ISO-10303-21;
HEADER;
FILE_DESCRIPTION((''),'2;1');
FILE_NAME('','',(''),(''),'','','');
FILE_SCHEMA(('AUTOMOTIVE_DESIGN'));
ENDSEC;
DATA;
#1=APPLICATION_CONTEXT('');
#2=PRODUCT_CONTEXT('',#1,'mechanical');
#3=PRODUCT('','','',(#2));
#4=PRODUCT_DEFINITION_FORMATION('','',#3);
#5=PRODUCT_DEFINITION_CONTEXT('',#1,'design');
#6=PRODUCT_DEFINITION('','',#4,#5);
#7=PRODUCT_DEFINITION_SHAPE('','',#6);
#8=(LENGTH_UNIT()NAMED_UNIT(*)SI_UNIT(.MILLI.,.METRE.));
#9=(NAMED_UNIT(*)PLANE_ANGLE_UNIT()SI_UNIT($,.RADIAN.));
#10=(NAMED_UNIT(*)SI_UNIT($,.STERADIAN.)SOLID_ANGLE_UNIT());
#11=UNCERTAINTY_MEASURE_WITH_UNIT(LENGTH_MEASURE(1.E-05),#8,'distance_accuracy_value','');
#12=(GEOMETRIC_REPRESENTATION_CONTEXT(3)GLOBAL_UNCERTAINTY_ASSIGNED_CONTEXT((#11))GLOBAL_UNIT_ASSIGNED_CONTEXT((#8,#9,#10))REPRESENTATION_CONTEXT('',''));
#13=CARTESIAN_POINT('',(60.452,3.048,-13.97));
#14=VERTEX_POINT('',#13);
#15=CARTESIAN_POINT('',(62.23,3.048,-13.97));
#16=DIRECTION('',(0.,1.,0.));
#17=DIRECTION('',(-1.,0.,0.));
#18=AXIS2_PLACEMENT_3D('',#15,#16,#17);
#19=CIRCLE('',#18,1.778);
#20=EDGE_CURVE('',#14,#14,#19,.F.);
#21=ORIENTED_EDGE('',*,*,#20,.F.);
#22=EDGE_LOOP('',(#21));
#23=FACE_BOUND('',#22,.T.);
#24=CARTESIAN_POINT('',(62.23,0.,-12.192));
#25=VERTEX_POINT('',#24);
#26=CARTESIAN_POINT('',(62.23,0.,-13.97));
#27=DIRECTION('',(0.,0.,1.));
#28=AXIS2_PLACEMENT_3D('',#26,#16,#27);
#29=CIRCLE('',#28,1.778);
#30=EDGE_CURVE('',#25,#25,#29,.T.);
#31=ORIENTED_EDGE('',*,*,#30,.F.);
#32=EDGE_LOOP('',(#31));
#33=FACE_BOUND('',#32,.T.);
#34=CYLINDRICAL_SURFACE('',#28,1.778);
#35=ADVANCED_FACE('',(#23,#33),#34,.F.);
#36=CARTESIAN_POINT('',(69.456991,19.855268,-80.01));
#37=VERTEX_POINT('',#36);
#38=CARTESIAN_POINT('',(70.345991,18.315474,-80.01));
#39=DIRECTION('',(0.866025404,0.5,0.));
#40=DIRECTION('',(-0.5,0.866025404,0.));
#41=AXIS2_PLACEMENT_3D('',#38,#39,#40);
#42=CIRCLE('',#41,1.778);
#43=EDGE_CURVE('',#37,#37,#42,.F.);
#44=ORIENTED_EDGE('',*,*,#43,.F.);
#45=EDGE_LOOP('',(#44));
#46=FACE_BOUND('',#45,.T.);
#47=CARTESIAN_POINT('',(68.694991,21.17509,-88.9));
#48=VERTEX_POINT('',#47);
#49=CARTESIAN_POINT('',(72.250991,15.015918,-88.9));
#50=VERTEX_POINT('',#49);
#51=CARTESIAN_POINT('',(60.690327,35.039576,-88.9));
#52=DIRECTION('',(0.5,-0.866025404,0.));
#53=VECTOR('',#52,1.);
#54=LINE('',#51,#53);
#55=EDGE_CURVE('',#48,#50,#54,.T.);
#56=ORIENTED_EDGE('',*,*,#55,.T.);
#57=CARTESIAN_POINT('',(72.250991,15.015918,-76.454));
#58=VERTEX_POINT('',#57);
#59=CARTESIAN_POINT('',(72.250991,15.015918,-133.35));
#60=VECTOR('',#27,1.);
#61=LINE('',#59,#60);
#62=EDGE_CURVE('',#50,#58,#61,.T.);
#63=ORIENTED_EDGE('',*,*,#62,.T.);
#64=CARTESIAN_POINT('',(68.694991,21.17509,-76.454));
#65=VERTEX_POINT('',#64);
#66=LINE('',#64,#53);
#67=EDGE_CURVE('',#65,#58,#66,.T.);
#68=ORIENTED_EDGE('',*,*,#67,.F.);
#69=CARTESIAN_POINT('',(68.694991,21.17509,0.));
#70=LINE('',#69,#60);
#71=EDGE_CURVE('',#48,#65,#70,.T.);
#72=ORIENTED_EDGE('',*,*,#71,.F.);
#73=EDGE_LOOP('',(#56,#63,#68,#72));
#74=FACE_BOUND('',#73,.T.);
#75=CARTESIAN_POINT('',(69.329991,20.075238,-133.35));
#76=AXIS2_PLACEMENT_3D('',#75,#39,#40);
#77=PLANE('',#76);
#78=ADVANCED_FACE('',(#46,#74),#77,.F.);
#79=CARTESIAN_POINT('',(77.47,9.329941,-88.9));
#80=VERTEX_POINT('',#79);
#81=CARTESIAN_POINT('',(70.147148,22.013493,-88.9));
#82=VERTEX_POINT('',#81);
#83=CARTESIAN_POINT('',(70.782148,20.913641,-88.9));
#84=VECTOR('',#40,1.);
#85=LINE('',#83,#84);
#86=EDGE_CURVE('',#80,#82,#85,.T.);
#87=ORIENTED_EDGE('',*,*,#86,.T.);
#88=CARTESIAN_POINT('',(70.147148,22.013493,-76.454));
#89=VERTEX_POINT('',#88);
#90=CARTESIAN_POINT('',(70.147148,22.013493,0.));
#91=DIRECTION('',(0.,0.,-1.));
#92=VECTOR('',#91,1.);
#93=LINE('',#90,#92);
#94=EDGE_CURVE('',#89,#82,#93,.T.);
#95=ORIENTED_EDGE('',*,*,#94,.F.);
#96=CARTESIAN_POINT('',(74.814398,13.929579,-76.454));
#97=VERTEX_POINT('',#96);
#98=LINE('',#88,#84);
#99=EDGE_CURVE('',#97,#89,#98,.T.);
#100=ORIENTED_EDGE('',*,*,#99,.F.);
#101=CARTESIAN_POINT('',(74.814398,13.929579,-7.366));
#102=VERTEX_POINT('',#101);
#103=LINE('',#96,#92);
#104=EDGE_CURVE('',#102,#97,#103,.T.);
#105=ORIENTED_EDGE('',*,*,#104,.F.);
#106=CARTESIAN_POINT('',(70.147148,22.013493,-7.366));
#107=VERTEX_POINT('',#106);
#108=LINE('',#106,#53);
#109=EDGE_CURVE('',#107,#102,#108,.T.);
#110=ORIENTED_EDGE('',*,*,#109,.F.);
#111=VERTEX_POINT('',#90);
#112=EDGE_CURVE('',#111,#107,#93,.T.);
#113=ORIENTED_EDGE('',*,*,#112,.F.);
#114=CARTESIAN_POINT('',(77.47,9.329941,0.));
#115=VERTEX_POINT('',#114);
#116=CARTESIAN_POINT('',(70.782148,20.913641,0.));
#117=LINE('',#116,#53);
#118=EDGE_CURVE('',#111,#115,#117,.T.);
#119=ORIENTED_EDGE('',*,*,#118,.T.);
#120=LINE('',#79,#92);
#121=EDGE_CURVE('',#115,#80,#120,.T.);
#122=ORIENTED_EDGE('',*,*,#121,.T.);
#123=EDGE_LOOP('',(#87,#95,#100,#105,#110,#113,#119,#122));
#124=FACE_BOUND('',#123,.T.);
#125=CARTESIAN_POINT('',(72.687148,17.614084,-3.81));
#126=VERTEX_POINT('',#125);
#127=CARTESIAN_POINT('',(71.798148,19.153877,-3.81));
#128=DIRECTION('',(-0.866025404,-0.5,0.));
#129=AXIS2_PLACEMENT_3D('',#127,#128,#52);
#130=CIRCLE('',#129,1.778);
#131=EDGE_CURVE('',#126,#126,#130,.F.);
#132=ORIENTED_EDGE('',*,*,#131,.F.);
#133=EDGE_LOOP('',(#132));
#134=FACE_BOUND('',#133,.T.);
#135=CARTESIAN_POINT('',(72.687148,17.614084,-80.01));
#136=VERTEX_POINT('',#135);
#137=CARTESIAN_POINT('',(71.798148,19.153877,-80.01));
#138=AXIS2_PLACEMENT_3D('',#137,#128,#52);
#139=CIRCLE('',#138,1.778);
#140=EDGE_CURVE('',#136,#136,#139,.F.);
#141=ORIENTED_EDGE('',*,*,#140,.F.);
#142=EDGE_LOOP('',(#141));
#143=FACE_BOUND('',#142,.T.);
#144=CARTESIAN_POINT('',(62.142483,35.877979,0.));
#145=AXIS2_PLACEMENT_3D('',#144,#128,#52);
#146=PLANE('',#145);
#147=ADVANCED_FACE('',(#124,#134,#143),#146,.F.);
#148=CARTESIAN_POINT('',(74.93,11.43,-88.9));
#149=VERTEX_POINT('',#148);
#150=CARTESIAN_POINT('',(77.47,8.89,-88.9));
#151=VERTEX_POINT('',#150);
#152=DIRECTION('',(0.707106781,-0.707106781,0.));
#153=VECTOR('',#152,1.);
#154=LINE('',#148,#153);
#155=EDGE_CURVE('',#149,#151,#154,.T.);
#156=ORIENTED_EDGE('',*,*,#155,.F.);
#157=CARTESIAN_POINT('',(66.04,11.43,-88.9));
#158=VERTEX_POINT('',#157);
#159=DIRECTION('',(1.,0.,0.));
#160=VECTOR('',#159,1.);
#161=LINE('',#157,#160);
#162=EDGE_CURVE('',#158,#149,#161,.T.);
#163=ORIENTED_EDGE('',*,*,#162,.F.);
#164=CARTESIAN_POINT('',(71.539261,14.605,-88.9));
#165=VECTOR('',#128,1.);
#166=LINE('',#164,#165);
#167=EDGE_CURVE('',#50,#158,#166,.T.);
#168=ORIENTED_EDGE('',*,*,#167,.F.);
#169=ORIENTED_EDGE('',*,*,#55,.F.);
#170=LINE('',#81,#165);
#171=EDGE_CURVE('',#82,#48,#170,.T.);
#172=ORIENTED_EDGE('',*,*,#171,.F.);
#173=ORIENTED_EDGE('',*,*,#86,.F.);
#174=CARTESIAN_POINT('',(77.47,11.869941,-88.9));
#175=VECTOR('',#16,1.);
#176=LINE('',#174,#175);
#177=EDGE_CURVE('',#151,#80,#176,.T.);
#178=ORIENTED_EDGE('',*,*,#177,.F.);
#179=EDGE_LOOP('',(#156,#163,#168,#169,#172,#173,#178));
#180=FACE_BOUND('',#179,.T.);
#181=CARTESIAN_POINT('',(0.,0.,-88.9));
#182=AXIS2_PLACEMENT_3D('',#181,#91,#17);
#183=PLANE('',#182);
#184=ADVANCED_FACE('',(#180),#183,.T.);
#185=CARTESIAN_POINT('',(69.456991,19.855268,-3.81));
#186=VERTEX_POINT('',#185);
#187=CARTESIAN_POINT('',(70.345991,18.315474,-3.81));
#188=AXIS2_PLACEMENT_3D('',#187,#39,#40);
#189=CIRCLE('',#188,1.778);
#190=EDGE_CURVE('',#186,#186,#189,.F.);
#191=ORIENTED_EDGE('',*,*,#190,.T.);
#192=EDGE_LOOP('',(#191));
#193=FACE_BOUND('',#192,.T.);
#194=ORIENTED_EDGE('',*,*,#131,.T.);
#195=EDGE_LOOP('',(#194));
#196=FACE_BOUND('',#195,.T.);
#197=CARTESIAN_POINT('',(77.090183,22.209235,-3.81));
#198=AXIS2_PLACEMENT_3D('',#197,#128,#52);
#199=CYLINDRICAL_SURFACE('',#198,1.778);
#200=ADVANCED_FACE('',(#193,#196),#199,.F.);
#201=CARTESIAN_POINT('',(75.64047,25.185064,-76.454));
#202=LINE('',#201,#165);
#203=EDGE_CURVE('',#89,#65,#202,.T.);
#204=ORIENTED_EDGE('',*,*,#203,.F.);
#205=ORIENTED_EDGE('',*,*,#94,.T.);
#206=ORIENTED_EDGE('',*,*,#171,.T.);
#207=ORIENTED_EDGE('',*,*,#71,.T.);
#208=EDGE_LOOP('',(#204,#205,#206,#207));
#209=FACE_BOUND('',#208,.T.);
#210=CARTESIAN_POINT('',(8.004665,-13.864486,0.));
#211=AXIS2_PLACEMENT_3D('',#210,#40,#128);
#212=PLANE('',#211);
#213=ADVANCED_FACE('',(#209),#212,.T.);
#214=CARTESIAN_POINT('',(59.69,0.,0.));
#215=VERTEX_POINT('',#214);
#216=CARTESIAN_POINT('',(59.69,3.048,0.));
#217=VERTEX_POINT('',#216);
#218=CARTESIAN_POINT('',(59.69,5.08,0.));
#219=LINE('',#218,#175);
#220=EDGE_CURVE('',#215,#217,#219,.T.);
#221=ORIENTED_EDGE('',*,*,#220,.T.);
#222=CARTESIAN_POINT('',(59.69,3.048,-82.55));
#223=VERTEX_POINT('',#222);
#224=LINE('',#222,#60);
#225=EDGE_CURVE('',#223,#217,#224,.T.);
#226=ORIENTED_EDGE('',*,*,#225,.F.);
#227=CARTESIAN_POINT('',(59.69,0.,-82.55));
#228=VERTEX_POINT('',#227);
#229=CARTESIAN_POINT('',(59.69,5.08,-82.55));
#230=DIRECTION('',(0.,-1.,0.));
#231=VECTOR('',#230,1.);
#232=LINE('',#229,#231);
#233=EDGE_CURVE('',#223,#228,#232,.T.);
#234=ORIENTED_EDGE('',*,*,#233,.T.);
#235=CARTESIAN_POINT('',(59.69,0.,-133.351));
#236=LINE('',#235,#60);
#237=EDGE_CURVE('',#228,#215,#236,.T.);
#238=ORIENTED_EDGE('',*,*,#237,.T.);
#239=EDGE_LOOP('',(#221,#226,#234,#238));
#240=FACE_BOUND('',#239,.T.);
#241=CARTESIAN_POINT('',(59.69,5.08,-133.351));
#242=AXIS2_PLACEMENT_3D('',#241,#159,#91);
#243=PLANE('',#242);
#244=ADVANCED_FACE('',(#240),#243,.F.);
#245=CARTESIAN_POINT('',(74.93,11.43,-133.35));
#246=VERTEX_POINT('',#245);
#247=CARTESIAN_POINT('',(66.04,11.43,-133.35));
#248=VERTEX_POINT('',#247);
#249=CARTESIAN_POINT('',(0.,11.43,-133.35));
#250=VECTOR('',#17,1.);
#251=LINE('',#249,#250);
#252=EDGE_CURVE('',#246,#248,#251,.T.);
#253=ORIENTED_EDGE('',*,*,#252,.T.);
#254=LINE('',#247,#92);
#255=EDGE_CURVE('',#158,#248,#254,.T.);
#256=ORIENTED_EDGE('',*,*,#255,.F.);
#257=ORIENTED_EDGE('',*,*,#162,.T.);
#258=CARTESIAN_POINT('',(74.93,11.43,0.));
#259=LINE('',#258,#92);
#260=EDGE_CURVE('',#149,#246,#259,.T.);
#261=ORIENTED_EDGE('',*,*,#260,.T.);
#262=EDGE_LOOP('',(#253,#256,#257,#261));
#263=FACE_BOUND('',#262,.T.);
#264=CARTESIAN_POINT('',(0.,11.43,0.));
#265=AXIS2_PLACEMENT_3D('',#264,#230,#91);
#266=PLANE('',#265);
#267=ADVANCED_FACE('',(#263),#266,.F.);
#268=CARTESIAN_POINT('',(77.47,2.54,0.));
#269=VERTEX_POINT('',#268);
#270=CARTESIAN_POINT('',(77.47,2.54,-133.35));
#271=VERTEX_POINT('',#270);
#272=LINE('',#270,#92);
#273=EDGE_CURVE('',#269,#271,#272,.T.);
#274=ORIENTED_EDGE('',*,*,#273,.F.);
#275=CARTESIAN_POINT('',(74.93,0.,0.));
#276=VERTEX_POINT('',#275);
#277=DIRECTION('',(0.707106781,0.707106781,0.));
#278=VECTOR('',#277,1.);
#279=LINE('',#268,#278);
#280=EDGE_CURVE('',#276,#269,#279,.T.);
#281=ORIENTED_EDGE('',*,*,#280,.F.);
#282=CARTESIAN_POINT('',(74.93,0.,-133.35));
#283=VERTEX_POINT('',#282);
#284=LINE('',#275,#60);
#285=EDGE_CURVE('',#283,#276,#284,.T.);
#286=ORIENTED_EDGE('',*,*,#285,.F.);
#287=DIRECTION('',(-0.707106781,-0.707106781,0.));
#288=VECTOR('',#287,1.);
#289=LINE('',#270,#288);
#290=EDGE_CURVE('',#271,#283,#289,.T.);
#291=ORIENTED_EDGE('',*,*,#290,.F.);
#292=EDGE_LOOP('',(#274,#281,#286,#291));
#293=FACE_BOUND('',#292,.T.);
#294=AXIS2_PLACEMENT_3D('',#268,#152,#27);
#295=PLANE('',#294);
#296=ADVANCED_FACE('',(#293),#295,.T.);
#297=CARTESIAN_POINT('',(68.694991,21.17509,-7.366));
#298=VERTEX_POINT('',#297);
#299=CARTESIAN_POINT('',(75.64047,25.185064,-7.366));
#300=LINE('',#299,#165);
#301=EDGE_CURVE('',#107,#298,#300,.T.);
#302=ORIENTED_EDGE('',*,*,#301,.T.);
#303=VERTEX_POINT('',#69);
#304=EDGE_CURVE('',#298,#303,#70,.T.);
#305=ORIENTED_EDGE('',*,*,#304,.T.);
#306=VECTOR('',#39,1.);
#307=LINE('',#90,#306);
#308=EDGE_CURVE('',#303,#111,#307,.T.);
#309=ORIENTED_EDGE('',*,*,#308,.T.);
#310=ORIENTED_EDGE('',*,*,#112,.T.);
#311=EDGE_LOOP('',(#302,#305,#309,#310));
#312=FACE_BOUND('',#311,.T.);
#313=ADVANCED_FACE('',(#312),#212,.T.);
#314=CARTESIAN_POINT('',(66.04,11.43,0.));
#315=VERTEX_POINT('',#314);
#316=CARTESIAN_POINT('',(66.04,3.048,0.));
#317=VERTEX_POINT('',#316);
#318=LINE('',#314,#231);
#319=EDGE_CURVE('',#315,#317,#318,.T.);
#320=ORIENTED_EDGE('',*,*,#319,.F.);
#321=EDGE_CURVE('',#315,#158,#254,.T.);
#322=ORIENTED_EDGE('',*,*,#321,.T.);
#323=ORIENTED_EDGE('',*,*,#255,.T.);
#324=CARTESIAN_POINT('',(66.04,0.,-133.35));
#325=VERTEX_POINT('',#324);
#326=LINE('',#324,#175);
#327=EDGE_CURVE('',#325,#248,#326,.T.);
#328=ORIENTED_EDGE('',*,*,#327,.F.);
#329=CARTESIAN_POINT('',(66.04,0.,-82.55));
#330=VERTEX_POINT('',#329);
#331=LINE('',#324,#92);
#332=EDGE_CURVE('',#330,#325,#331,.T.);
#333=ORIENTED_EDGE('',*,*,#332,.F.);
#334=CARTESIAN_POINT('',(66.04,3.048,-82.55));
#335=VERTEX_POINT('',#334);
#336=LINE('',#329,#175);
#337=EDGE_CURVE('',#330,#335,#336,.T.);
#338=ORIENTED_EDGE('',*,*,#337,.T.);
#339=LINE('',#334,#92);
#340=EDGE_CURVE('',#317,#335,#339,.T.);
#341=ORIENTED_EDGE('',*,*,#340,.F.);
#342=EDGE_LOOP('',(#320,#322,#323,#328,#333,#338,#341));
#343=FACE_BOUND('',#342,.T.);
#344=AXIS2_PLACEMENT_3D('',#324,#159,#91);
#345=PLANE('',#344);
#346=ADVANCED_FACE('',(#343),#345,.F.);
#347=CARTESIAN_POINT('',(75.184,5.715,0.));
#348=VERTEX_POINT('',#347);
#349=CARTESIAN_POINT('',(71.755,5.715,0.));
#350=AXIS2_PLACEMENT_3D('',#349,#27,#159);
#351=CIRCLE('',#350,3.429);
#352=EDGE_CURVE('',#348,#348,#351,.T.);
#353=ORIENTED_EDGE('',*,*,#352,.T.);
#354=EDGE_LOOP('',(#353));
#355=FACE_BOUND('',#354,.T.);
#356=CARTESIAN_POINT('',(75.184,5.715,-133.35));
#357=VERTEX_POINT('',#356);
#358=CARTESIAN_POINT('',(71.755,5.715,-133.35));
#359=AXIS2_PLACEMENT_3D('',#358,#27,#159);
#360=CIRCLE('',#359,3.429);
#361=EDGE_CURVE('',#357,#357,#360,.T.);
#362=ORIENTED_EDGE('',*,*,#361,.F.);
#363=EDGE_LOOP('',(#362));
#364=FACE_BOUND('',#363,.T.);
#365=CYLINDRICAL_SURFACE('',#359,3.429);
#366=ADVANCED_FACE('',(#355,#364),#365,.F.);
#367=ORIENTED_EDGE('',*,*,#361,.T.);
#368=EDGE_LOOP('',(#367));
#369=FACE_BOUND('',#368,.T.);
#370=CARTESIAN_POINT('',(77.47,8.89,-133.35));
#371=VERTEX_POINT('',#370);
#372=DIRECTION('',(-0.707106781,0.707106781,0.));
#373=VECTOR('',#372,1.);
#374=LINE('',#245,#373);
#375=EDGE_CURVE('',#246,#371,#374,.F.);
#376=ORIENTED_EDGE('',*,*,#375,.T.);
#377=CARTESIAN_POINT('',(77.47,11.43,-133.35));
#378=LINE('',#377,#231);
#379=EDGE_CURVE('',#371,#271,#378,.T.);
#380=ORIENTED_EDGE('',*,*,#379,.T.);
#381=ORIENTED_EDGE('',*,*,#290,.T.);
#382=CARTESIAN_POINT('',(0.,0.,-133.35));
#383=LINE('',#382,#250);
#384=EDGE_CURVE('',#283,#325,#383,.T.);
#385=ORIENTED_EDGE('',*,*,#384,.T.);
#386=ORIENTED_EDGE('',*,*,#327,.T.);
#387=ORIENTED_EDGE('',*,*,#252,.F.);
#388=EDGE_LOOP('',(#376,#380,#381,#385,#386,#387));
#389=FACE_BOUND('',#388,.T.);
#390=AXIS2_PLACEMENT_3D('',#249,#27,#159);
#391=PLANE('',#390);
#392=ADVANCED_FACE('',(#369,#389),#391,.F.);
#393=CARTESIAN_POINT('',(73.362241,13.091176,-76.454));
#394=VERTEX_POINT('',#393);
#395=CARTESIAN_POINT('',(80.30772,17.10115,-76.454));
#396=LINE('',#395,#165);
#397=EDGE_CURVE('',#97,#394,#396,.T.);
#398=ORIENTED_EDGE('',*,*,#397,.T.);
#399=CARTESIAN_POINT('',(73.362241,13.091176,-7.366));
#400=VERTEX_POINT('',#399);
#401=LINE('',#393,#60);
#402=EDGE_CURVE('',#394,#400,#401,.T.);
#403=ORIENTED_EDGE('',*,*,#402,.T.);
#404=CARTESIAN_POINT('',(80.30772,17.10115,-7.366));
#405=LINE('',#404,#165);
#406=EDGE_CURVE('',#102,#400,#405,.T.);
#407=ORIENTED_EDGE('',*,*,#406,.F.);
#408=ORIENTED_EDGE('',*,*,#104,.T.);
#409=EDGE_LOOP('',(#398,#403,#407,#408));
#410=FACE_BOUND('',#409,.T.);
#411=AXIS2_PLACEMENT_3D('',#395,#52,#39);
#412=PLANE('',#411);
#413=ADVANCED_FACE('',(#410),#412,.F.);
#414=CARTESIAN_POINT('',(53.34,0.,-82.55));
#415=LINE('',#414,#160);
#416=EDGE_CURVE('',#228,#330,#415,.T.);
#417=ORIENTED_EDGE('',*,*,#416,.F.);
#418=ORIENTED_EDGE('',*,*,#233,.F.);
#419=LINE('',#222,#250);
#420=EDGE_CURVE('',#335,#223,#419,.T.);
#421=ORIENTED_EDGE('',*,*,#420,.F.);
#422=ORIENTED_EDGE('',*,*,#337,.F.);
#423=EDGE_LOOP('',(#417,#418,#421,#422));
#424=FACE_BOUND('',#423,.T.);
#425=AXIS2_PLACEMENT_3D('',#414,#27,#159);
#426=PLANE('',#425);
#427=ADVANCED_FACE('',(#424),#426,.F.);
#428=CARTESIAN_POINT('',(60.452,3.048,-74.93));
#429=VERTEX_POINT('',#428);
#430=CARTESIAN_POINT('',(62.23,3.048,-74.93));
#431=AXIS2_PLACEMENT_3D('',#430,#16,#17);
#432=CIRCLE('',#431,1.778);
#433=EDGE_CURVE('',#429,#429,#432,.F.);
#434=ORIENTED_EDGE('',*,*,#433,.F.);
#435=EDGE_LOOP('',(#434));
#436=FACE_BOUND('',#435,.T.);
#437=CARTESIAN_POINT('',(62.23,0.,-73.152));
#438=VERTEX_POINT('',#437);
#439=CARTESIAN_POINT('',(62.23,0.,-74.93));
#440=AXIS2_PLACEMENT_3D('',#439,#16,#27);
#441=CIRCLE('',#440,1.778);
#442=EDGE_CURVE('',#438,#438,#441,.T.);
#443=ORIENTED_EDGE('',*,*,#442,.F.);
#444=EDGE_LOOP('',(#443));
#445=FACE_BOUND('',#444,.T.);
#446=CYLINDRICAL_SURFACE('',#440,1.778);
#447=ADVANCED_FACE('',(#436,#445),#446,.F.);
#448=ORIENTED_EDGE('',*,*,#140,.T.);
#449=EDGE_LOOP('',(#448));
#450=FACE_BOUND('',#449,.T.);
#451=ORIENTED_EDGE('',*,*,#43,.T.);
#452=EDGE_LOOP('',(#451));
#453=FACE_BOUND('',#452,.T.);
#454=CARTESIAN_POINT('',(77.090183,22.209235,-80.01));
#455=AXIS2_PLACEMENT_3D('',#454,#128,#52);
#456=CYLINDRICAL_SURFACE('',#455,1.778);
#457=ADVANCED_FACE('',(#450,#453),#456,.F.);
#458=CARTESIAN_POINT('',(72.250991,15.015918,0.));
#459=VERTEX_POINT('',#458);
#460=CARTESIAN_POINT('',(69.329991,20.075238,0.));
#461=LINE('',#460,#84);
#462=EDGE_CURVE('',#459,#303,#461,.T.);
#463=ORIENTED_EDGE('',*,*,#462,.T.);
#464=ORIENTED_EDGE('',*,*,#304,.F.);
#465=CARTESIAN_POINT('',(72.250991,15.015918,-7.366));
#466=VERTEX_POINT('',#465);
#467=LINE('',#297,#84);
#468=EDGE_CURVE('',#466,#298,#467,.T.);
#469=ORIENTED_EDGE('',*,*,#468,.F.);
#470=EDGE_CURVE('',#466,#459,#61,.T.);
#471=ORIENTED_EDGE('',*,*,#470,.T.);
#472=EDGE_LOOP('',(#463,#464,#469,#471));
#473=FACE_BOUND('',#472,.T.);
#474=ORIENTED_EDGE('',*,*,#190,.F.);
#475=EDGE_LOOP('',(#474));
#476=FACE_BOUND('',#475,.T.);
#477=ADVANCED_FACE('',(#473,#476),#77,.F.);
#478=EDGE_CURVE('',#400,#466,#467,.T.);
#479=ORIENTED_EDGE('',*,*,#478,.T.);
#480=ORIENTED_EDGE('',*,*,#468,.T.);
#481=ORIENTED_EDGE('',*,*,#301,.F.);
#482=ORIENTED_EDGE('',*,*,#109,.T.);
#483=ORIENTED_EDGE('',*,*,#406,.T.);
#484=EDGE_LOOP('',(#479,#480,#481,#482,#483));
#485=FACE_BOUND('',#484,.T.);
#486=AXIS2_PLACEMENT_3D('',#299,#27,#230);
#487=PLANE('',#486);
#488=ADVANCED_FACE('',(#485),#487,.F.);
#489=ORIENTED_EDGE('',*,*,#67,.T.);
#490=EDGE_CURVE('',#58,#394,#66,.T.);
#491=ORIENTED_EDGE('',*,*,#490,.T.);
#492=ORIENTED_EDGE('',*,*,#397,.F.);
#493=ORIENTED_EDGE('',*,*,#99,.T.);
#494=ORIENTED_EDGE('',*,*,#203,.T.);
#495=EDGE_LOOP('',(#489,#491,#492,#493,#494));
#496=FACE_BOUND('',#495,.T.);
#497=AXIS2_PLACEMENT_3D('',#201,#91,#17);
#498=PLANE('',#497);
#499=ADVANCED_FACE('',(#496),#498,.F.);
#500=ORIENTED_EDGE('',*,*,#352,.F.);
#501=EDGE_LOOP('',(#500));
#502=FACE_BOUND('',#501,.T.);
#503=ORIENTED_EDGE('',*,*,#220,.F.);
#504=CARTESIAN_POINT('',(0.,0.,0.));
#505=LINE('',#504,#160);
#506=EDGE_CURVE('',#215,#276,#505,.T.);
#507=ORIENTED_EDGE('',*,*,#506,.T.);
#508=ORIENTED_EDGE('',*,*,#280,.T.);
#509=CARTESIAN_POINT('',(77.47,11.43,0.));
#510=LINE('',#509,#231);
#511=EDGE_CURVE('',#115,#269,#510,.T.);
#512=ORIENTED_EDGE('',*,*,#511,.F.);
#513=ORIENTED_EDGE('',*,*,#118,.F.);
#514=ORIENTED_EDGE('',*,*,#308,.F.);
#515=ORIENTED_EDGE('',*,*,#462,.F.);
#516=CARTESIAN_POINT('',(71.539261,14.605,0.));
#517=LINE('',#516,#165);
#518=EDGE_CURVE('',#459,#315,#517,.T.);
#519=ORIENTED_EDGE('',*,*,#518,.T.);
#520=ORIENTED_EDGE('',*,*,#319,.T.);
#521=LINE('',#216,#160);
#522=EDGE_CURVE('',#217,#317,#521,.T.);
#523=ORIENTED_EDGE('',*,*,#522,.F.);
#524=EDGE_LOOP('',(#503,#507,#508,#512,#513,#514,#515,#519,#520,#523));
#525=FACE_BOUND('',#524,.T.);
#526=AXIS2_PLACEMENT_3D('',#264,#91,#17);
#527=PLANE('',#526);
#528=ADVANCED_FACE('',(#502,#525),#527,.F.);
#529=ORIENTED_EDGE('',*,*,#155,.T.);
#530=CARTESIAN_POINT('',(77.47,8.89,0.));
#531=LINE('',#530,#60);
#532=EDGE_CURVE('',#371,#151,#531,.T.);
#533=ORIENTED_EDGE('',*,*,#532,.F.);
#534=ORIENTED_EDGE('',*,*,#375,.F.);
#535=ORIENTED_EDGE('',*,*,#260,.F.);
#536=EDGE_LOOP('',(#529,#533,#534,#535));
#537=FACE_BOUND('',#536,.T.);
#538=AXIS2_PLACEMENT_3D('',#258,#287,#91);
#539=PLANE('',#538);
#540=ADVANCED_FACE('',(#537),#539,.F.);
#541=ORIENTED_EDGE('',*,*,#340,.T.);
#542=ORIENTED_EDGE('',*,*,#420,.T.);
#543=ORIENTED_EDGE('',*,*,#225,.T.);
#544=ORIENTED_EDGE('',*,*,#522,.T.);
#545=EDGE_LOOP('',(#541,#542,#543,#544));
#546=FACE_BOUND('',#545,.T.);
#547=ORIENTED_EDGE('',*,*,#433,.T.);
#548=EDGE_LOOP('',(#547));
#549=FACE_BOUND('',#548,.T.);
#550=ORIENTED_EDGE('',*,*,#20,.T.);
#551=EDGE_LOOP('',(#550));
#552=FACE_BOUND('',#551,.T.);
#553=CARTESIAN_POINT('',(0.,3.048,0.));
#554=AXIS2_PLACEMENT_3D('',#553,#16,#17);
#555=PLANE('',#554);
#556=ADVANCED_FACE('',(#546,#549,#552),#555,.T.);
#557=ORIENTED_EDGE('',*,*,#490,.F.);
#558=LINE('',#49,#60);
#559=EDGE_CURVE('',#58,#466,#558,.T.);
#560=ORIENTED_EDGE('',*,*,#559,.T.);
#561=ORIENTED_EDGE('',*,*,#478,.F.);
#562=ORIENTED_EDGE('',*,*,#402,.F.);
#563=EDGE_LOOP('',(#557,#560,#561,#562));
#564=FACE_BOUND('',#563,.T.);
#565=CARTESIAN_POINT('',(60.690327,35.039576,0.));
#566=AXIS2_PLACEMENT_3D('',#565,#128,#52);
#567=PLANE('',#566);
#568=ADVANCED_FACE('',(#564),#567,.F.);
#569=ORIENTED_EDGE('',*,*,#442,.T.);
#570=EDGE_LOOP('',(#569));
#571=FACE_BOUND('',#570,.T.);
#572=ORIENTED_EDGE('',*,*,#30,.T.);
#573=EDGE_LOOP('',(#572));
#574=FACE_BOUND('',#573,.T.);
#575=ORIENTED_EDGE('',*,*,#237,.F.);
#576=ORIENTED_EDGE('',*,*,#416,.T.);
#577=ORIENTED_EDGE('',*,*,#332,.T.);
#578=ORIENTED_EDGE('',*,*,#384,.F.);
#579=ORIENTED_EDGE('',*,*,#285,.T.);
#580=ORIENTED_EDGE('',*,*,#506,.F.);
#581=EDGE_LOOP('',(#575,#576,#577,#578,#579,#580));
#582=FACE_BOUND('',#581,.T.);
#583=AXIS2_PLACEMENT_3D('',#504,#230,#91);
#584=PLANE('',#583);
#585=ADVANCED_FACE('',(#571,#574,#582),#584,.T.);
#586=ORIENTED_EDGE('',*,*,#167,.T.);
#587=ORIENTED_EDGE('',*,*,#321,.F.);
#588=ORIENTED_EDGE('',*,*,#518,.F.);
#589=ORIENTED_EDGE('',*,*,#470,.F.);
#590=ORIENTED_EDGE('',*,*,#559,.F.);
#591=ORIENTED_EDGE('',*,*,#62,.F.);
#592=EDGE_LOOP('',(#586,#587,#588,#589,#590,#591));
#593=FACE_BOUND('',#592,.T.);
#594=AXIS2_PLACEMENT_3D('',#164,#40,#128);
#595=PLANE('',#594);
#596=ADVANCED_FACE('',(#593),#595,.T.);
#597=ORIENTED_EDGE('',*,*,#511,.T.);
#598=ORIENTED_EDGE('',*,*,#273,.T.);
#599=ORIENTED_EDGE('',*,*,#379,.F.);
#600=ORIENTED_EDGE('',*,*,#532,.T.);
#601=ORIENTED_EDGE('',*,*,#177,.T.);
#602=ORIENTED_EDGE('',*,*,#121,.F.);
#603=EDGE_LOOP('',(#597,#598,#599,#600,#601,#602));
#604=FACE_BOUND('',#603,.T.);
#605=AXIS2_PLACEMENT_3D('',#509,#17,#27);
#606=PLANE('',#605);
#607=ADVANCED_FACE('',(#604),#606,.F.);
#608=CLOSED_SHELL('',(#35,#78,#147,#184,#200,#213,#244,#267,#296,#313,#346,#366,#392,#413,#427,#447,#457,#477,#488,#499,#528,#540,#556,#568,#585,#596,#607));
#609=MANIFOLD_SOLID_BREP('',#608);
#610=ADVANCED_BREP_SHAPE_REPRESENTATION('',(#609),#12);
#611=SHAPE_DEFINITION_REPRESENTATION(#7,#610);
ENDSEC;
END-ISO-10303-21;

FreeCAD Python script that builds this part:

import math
import FreeCAD as App
import Part
import Sketcher
from FreeCAD import Vector
Q = App.Units.Quantity


def edges_at(feature, points):
    """Names of the edges that pass closest to the given points."""
    edges = feature.Shape.Edges
    near = lambda p: min(range(len(edges)), key=lambda i: edges[i].distToShape(Part.Vertex(*p))[0])
    return sorted({f"Edge{near(p) + 1}" for p in points})


def add_polygon(sketch, points):
    """Adds a closed chain of lines whose ends are joined by coincident constraints."""
    first, n = sketch.GeometryCount, len(points)
    for a, b in zip(points, points[1:] + points[:1]):
        sketch.addGeometry(Part.LineSegment(App.Vector(*a, 0), App.Vector(*b, 0)), False)
    for i in range(n):
        sketch.addConstraint(Sketcher.Constraint("Coincident", first + i, 2, first + (i + 1) % n, 1))

doc = App.newDocument("Part")
params = doc.addObject("Spreadsheet::Sheet", "Params")
for row, (alias, value) in enumerate([
    ("sketch1_width", "3.05 in"),
    ("sketch1_height", "5.25 in"),
    ("pad1_length", "0.45 in"),
    ("sketch2_diameter", "0.27 in"),
    ("sketch3_radius", "0.5 in"),
    ("sketch3_height", "1.5 in"),
    ("sketch3_width", "1.15 in"),
    ("sketch4_width", "2.15 in"),
    ("sketch4_height", "0.25 in"),
    ("chamfer_size", "0.1 in"),
    ("sketch5_height", "2 in"),
    ("sketch5_width", "2.6 in"),
    ("sketch6_width", "2.1 in"),
    ("sketch6_height", "3.25 in"),
    ("sketch7_diameter", "0.14 in"),
    ("sketch8_width", "0.35 in"),
    ("sketch8_length", "0.44 in"),
    ("sketch8_length2", "0.23 in"),
    ("sketch8_length3", "0.25 in"),
    ("pad2_length", "3.5 in"),
    ("sketch9_height", "0.2 in"),
    ("sketch9_width", "0.25 in"),
    ("sketch10_width", "0.25 in"),
    ("sketch10_height", "0.05 in"),
    ("sketch11_diameter", "0.14 in"),
    ("sketch12_diameter", "0.14 in"),
    ("sketch13_width", "3.5 in"),
    ("sketch13_height", "0.44 in"),
    ("pocket11_length", "0.05 in"),
    ("sketch14_length", "0.2 in"),
    ("sketch14_length2", "0.23 in"),
    ("sketch15_width", "0.25 in"),
    ("sketch15_height", "3.25 in"),
    ("pocket13_length", "0.03 in"),
    ("sketch16_height", "3.5 in"),
    ("pad3_length", "0.05 in"),
    ("sketch17_width", "2.72 in"),
    ("sketch18_height", "3.5 in"),
    ("sketch18_width", "0.05 in"),
], start=1):
    params.set(f"A{row}", alias)
    params.set(f"B{row}", "=" + value)
    params.setAlias(f"B{row}", alias)

body = doc.addObject("PartDesign::Body", "Body")

# Sketch on XZ plane
sketch1 = body.newObject("Sketcher::SketchObject", "Sketch")
sketch1.AttachmentSupport = (doc.getObject("XZ_Plane"), [""])
sketch1.MapMode = "FlatFace"
add_polygon(sketch1, [(0, -133), (0, 0), (77, 0), (77, -133)])  # lines 0-3
sketch1.addConstraint([
    Sketcher.Constraint("Vertical", 0),
    Sketcher.Constraint("Horizontal", 1),
    Sketcher.Constraint("Vertical", 2),
    Sketcher.Constraint("Horizontal", 3),
    Sketcher.Constraint("Coincident", 0, 2, -1, 1),
    Sketcher.Constraint("DistanceX", 1, 1, 1, 2, Q("3.05 in")),
    Sketcher.Constraint("DistanceY", 0, 1, 0, 2, Q("5.25 in")),
])
sketch1.setExpression("Constraints[9]", "Params.sketch1_width")
sketch1.setExpression("Constraints[10]", "Params.sketch1_height")
pad1 = body.newObject("PartDesign::Pad", "Pad")
pad1.Profile = sketch1
pad1.setExpression("Length", "Params.pad1_length")
pad1.Reversed = True

# Sketch on XY plane
sketch2 = body.newObject("Sketcher::SketchObject", "Sketch001")
sketch2.AttachmentSupport = (doc.getObject("XY_Plane"), [""])
sketch2.MapMode = "FlatFace"
sketch2.addGeometry([
    Part.Circle(Vector(5.7, 5.7, 0), Vector(0, 0, 1), 3.4),
    Part.Circle(Vector(71.8, 5.7, 0), Vector(0, 0, 1), 3.4),
], False)
sketch2.addConstraint([
    Sketcher.Constraint("Equal", 0, 1),
    Sketcher.Constraint("Horizontal", 0, 3, 1, 3),
    Sketcher.Constraint("Diameter", 0, Q("0.27 in")),
    Sketcher.Constraint("DistanceX", 0, 3, 1, 3, Q("2.6 in")),
    Sketcher.Constraint("DistanceX", -1, 1, 0, 3, Q("0.225 in")),
    Sketcher.Constraint("DistanceY", -1, 1, 0, 3, Q("0.225 in")),
])
sketch2.setExpression("Constraints[2]", "Params.sketch2_diameter")
pocket1 = body.newObject("PartDesign::Pocket", "Pocket")
pocket1.Profile = sketch2
pocket1.Type = "ThroughAll"

# Sketch on XZ plane
sketch3 = body.newObject("Sketcher::SketchObject", "Sketch002")
sketch3.AttachmentSupport = (doc.getObject("XZ_Plane"), [""])
sketch3.MapMode = "FlatFace"
sketch3.AttachmentOffset = App.Placement(Vector(0, 0, -0.45 * 25.4), App.Rotation())
sketch3.addGeometry([
    Part.LineSegment(Vector(11, -133, 0), Vector(11, -95, 0)),  # 0
    Part.ArcOfCircle(Part.Circle(Vector(24, -95, 0), Vector(0, 0, 1), 13), math.radians(90), math.radians(180)),  # 1
    Part.LineSegment(Vector(24, -83, 0), Vector(53, -83, 0)),  # 2
    Part.ArcOfCircle(Part.Circle(Vector(53, -95, 0), Vector(0, 0, 1), 13), math.radians(0), math.radians(90)),  # 3
    Part.LineSegment(Vector(66, -95, 0), Vector(66, -133, 0)),  # 4
    Part.LineSegment(Vector(66, -133, 0), Vector(11, -133, 0)),  # 5
], False)
sketch3.addConstraint([
    Sketcher.Constraint("Tangent", 0, 2, 1, 2),
    Sketcher.Constraint("Tangent", 1, 1, 2, 1),
    Sketcher.Constraint("Tangent", 2, 2, 3, 2),
    Sketcher.Constraint("Tangent", 3, 1, 4, 1),
    Sketcher.Constraint("Coincident", 4, 2, 5, 1),
    Sketcher.Constraint("Coincident", 5, 2, 0, 1),
    Sketcher.Constraint("Vertical", 0),
    Sketcher.Constraint("Horizontal", 2),
    Sketcher.Constraint("Vertical", 4),
    Sketcher.Constraint("Horizontal", 5),
    Sketcher.Constraint("Equal", 1, 3),
    Sketcher.Constraint("Radius", 1, Q("0.5 in")),
    Sketcher.Constraint("DistanceY", 0, 1, 0, 2, Q("1.5 in")),
    Sketcher.Constraint("DistanceX", 2, 1, 2, 2, Q("1.15 in")),
    Sketcher.Constraint("DistanceX", -1, 1, 3, 3, Q("2.1 in")),
    Sketcher.Constraint("DistanceY", 1, 3, -1, 1, Q("3.75 in")),
])
sketch3.setExpression("Constraints[11]", "Params.sketch3_radius")
sketch3.setExpression("Constraints[12]", "Params.sketch3_height")
sketch3.setExpression("Constraints[13]", "Params.sketch3_width")
pocket2 = body.newObject("PartDesign::Pocket", "Pocket001")
pocket2.Profile = sketch3
pocket2.Type = "ThroughAll"
pocket2.Reversed = True

# Sketch on XY plane
sketch4 = body.newObject("Sketcher::SketchObject", "Sketch003")
sketch4.AttachmentSupport = (doc.getObject("XY_Plane"), [""])
sketch4.MapMode = "FlatFace"
sketch4.AttachmentOffset = App.Placement(Vector(0, 0, -5.25 * 25.4), App.Rotation())
add_polygon(sketch4, [(66, 11), (66, 5), (11, 5), (11, 11)])  # lines 0-3
sketch4.addConstraint([
    Sketcher.Constraint("Vertical", 0),
    Sketcher.Constraint("Horizontal", 1),
    Sketcher.Constraint("Vertical", 2),
    Sketcher.Constraint("Horizontal", 3),
    Sketcher.Constraint("DistanceX", 1, 2, 1, 1, Q("2.15 in")),
    Sketcher.Constraint("DistanceY", 0, 2, 0, 1, Q("0.25 in")),
    Sketcher.Constraint("DistanceX", -1, 1, 0, 2, Q("2.6 in")),
    Sketcher.Constraint("DistanceY", -1, 1, 0, 2, Q("0.2 in")),
])
sketch4.setExpression("Constraints[8]", "Params.sketch4_width")
sketch4.setExpression("Constraints[9]", "Params.sketch4_height")
pocket3 = body.newObject("PartDesign::Pocket", "Pocket002")
pocket3.Profile = sketch4
pocket3.Type = "ThroughAll"
pocket3.Reversed = True
doc.recompute()

chamfer = body.newObject("PartDesign::Chamfer", "Chamfer")
chamfer.Base = (pocket3, edges_at(pocket3, [
    (77.47, 11.43, -66.675),
    (0, 11.43, -66.675),
    (77.47, 0, -66.675),
    (0, 0, -66.675),
]))
chamfer.setExpression("Size", "Params.chamfer_size")

# Sketch on XZ plane
sketch5 = body.newObject("Sketcher::SketchObject", "Sketch004")
sketch5.AttachmentSupport = (doc.getObject("XZ_Plane"), [""])
sketch5.MapMode = "FlatFace"
sketch5.AttachmentOffset = App.Placement(Vector(0, 0, -0.45 * 25.4), App.Rotation())
add_polygon(sketch5, [(0, -133), (0, -83), (66, -83), (66, -133)])  # lines 0-3
sketch5.addConstraint([
    Sketcher.Constraint("Vertical", 0),
    Sketcher.Constraint("Horizontal", 1),
    Sketcher.Constraint("Vertical", 2),
    Sketcher.Constraint("Horizontal", 3),
    Sketcher.Constraint("PointOnObject", 0, 2, -2),
    Sketcher.Constraint("DistanceY", 0, 1, 0, 2, Q("2 in")),
    Sketcher.Constraint("DistanceX", 1, 1, 1, 2, Q("2.6 in")),
    Sketcher.Constraint("DistanceY", 0, 2, -1, 1, Q("3.25 in")),
])
sketch5.setExpression("Constraints[9]", "Params.sketch5_height")
sketch5.setExpression("Constraints[10]", "Params.sketch5_width")
pocket4 = body.newObject("PartDesign::Pocket", "Pocket003")
pocket4.Profile = sketch5
pocket4.Type = "ThroughAll"
pocket4.Reversed = True

# Sketch on XZ plane
sketch6 = body.newObject("Sketcher::SketchObject", "Sketch005")
sketch6.AttachmentSupport = (doc.getObject("XZ_Plane"), [""])
sketch6.MapMode = "FlatFace"
sketch6.AttachmentOffset = App.Placement(Vector(0, 0, -0.45 * 25.4), App.Rotation())
add_polygon(sketch6, [(0, -83), (0, 0), (53, 0), (53, -83)])  # lines 0-3
sketch6.addConstraint([
    Sketcher.Constraint("Vertical", 0),
    Sketcher.Constraint("Horizontal", 1),
    Sketcher.Constraint("Vertical", 2),
    Sketcher.Constraint("Horizontal", 3),
    Sketcher.Constraint("Coincident", 0, 2, -1, 1),
    Sketcher.Constraint("DistanceX", 1, 1, 1, 2, Q("2.1 in")),
    Sketcher.Constraint("DistanceY", 0, 1, 0, 2, Q("3.25 in")),
])
sketch6.setExpression("Constraints[9]", "Params.sketch6_width")
sketch6.setExpression("Constraints[10]", "Params.sketch6_height")
pocket5 = body.newObject("PartDesign::Pocket", "Pocket004")
pocket5.Profile = sketch6
pocket5.Type = "ThroughAll"
pocket5.Reversed = True

# Sketch on XZ plane
sketch7 = body.newObject("Sketcher::SketchObject", "Sketch006")
sketch7.AttachmentSupport = (doc.getObject("XZ_Plane"), [""])
sketch7.MapMode = "FlatFace"
sketch7.AttachmentOffset = App.Placement(Vector(0, 0, -0.2 * 25.4), App.Rotation())
sketch7.addGeometry([
    Part.Circle(Vector(62.2, -74.9, 0), Vector(0, 0, 1), 1.8),
    Part.Circle(Vector(62.2, -14, 0), Vector(0, 0, 1), 1.8),
], False)
sketch7.addConstraint([
    Sketcher.Constraint("Equal", 0, 1),
    Sketcher.Constraint("Vertical", 0, 3, 1, 3),
    Sketcher.Constraint("Diameter", 0, Q("0.14 in")),
    Sketcher.Constraint("DistanceY", 0, 3, 1, 3, Q("2.4 in")),
    Sketcher.Constraint("DistanceX", -1, 1, 0, 3, Q("2.45 in")),
    Sketcher.Constraint("DistanceY", 0, 3, -1, 1, Q("2.95 in")),
])
sketch7.setExpression("Constraints[2]", "Params.sketch7_diameter")
pocket6 = body.newObject("PartDesign::Pocket", "Pocket005")
pocket6.Profile = sketch7
pocket6.Type = "ThroughAll"
pocket6.Reversed = True

# Sketch on XY plane
sketch8 = body.newObject("Sketcher::SketchObject", "Sketch007")
sketch8.AttachmentSupport = (doc.getObject("XY_Plane"), [""])
sketch8.MapMode = "FlatFace"
add_polygon(sketch8, [(77.5, 8.9), (77.5, 11.9), (71.9, 21.5), (68.6, 19.7), (71.5, 14.6), (66, 11.4), (74.9, 11.4)])  # lines 0-6
sketch8.addConstraint([
    Sketcher.Constraint("Vertical", 0),
    Sketcher.Constraint("Horizontal", 5),
    Sketcher.Constraint("Perpendicular", 1, 2),
    Sketcher.Constraint("Perpendicular", 2, 3),
    Sketcher.Constraint("Perpendicular", 3, 4),
    Sketcher.Constraint("Angle", 1, Q("120 deg")),
    Sketcher.Constraint("Angle", 6, Q("-45 deg")),
    Sketcher.Constraint("DistanceX", 5, 1, 5, 2, Q("0.35 in")),
    Sketcher.Constraint("DistanceX", -1, 1, 4, 2, Q("2.6 in")),
    Sketcher.Constraint("DistanceX", 5, 2, 0, 2, Q("0.1 in")),
    Sketcher.Constraint("Distance", 1, Q("0.44 in")),
    Sketcher.Constraint("Distance", 3, Q("0.23 in")),
    Sketcher.Constraint("Distance", 4, Q("0.25 in")),
    Sketcher.Constraint("DistanceY", -1, 1, 4, 2, Q("0.45 in")),
])
sketch8.setExpression("Constraints[14]", "Params.sketch8_width")
sketch8.setExpression("Constraints[17]", "Params.sketch8_length")
sketch8.setExpression("Constraints[18]", "Params.sketch8_length2")
sketch8.setExpression("Constraints[19]", "Params.sketch8_length3")
pad2 = body.newObject("PartDesign::Pad", "Pad001")
pad2.Profile = sketch8
pad2.setExpression("Length", "Params.pad2_length")
pad2.Reversed = True

# Sketch on XY plane
sketch9 = body.newObject("Sketcher::SketchObject", "Sketch008")
sketch9.AttachmentSupport = (doc.getObject("XY_Plane"), [""])
sketch9.MapMode = "FlatFace"
add_polygon(sketch9, [(53, 5), (53, 0), (60, 0), (60, 5)])  # lines 0-3
sketch9.addConstraint([
    Sketcher.Constraint("Vertical", 0),
    Sketcher.Constraint("Horizontal", 1),
    Sketcher.Constraint("Vertical", 2),
    Sketcher.Constraint("Horizontal", 3),
    Sketcher.Constraint("PointOnObject", 0, 2, -1),
    Sketcher.Constraint("DistanceY", 0, 2, 0, 1, Q("0.2 in")),
    Sketcher.Constraint("DistanceX", 1, 1, 1, 2, Q("0.25 in")),
    Sketcher.Constraint("DistanceX", -1, 1, 0, 2, Q("2.1 in")),
])
sketch9.setExpression("Constraints[9]", "Params.sketch9_height")
sketch9.setExpression("Constraints[10]", "Params.sketch9_width")
pocket7 = body.newObject("PartDesign::Pocket", "Pocket006")
pocket7.Profile = sketch9
pocket7.Type = "UpToFirst"

# Sketch on XY plane
sketch10 = body.newObject("Sketcher::SketchObject", "Sketch009")
sketch10.AttachmentSupport = (doc.getObject("XY_Plane"), [""])
sketch10.MapMode = "FlatFace"
add_polygon(sketch10, [(59.7, 5.1), (59.7, 3.8), (66, 3.8), (66, 5.1)])  # lines 0-3
sketch10.addConstraint([
    Sketcher.Constraint("Vertical", 0),
    Sketcher.Constraint("Horizontal", 1),
    Sketcher.Constraint("Vertical", 2),
    Sketcher.Constraint("Horizontal", 3),
    Sketcher.Constraint("DistanceX", 1, 1, 1, 2, Q("0.25 in")),
    Sketcher.Constraint("DistanceY", 0, 2, 0, 1, Q("0.05 in")),
    Sketcher.Constraint("DistanceX", -1, 1, 1, 2, Q("2.6 in")),
    Sketcher.Constraint("DistanceY", -1, 1, 2, 2, Q("0.2 in")),
])
sketch10.setExpression("Constraints[8]", "Params.sketch10_width")
sketch10.setExpression("Constraints[9]", "Params.sketch10_height")
pocket8 = body.newObject("PartDesign::Pocket", "Pocket007")
pocket8.Profile = sketch10
pocket8.Type = "UpToFirst"

# Sketch on an angled plane
sketch11 = body.newObject("Sketcher::SketchObject", "Sketch010")
sketch11.Placement = App.Placement(Vector(59.978596, 34.628659, 0), App.Rotation(Vector(0, 0, 1), Vector(-0.5, 0.866025404, 0), Vector(-0.866025404, -0.5, 0), "ZXY"))
sketch11.addGeometry(Part.Circle(Vector(-3.8, -19.3, 0), Vector(0, 0, 1), 1.8), False)
sketch11.addConstraint([
    Sketcher.Constraint("Diameter", 0, Q("0.14 in")),
    Sketcher.Constraint("DistanceX", 0, 3, -1, 1, Q("0.15 in")),
    Sketcher.Constraint("DistanceY", 0, 3, -1, 1, 19.31133),
])
sketch11.setExpression("Constraints[0]", "Params.sketch11_diameter")
pocket9 = body.newObject("PartDesign::Pocket", "Pocket008")
pocket9.Profile = sketch11
pocket9.Type = "UpToFirst"

# Sketch on an angled plane
sketch12 = body.newObject("Sketcher::SketchObject", "Sketch011")
sketch12.Placement = App.Placement(Vector(59.978596, 34.628659, 0), App.Rotation(Vector(0, 0, 1), Vector(-0.5, 0.866025404, 0), Vector(-0.866025404, -0.5, 0), "ZXY"))
sketch12.addGeometry(Part.Circle(Vector(-80, -19.3, 0), Vector(0, 0, 1), 1.8), False)
sketch12.addConstraint([
    Sketcher.Constraint("Diameter", 0, Q("0.14 in")),
    Sketcher.Constraint("DistanceX", 0, 3, -1, 1, Q("3.15 in")),
    Sketcher.Constraint("DistanceY", 0, 3, -1, 1, 19.31133),
])
sketch12.setExpression("Constraints[0]", "Params.sketch12_diameter")
pocket10 = body.newObject("PartDesign::Pocket", "Pocket009")
pocket10.Profile = sketch12
pocket10.Type = "UpToFirst"

# Sketch on an angled plane
sketch13 = body.newObject("Sketcher::SketchObject", "Sketch012")
sketch13.Placement = App.Placement(Vector(63.242335, 36.512979, 0), App.Rotation(Vector(0, 0, -1), Vector(-0.5, 0.866025404, 0), Vector(0.866025404, 0.5, 0), "ZXY"))
add_polygon(sketch13, [(0, -17), (0, -28), (89, -28), (89, -17)])  # lines 0-3
sketch13.addConstraint([
    Sketcher.Constraint("Vertical", 0),
    Sketcher.Constraint("Horizontal", 1),
    Sketcher.Constraint("Vertical", 2),
    Sketcher.Constraint("Horizontal", 3),
    Sketcher.Constraint("PointOnObject", 0, 2, -2),
    Sketcher.Constraint("DistanceX", 1, 1, 1, 2, Q("3.5 in")),
    Sketcher.Constraint("DistanceY", 0, 2, 0, 1, Q("0.44 in")),
    Sketcher.Constraint("DistanceY", 0, 2, -1, 1, 28.45533),
])
sketch13.setExpression("Constraints[9]", "Params.sketch13_width")
sketch13.setExpression("Constraints[10]", "Params.sketch13_height")
pocket11 = body.newObject("PartDesign::Pocket", "Pocket010")
pocket11.Profile = sketch13
pocket11.setExpression("Length", "Params.pocket11_length")

# Sketch on XY plane
sketch14 = body.newObject("Sketcher::SketchObject", "Sketch013")
sketch14.AttachmentSupport = (doc.getObject("XY_Plane"), [""])
sketch14.MapMode = "FlatFace"
add_polygon(sketch14, [(69, 20), (65, 18), (68, 12), (72, 15)])  # lines 0-3
sketch14.addConstraint([
    Sketcher.Constraint("Perpendicular", 0, 1),
    Sketcher.Constraint("Perpendicular", 1, 2),
    Sketcher.Constraint("Perpendicular", 2, 3),
    Sketcher.Constraint("Angle", 0, Q("-150 deg")),
    Sketcher.Constraint("Distance", 0, Q("0.2 in")),
    Sketcher.Constraint("Distance", 1, Q("0.23 in")),
    Sketcher.Constraint("DistanceX", -1, 1, 2, 2, 72.250991),
    Sketcher.Constraint("DistanceY", -1, 1, 0, 2, 17.535238),
])
sketch14.setExpression("Constraints[8]", "Params.sketch14_length")
sketch14.setExpression("Constraints[9]", "Params.sketch14_length2")
pocket12 = body.newObject("PartDesign::Pocket", "Pocket011")
pocket12.Profile = sketch14
pocket12.Type = "ThroughAll"

# Sketch on XZ plane
sketch15 = body.newObject("Sketcher::SketchObject", "Sketch014")
sketch15.AttachmentSupport = (doc.getObject("XZ_Plane"), [""])
sketch15.MapMode = "FlatFace"
sketch15.AttachmentOffset = App.Placement(Vector(0, 0, -0.15 * 25.4), App.Rotation())
add_polygon(sketch15, [(60, -83), (60, 0), (66, 0), (66, -83)])  # lines 0-3
sketch15.addConstraint([
    Sketcher.Constraint("Vertical", 0),
    Sketcher.Constraint("Horizontal", 1),
    Sketcher.Constraint("Vertical", 2),
    Sketcher.Constraint("Horizontal", 3),
    Sketcher.Constraint("PointOnObject", 0, 2, -1),
    Sketcher.Constraint("DistanceX", 1, 1, 1, 2, Q("0.25 in")),
    Sketcher.Constraint("DistanceY", 0, 1, 0, 2, Q("3.25 in")),
    Sketcher.Constraint("DistanceX", -1, 1, 1, 2, Q("2.6 in")),
])
sketch15.setExpression("Constraints[9]", "Params.sketch15_width")
sketch15.setExpression("Constraints[10]", "Params.sketch15_height")
pocket13 = body.newObject("PartDesign::Pocket", "Pocket012")
pocket13.Profile = sketch15
pocket13.setExpression("Length", "Params.pocket13_length")
pocket13.Reversed = True

# Sketch on an angled plane
sketch16 = body.newObject("Sketcher::SketchObject", "Sketch015")
sketch16.Placement = App.Placement(Vector(8.639665, -14.964338, 0), App.Rotation(Vector(0.866025404, 0.5, 0), Vector(0, 0, -1), Vector(-0.5, 0.866025404, 0), "ZXY"))
add_polygon(sketch16, [(70.1, 88.9), (70.1, 0), (71.8, 0), (71.8, 88.9)])  # lines 0-3
sketch16.addConstraint([
    Sketcher.Constraint("Vertical", 0),
    Sketcher.Constraint("Horizontal", 1),
    Sketcher.Constraint("Vertical", 2),
    Sketcher.Constraint("Horizontal", 3),
    Sketcher.Constraint("PointOnObject", 0, 2, -1),
    Sketcher.Constraint("DistanceY", 0, 2, 0, 1, Q("3.5 in")),
    Sketcher.Constraint("DistanceX", 1, 1, 1, 2, 1.676806),
    Sketcher.Constraint("DistanceX", -1, 1, 1, 2, 71.755959),
])
sketch16.setExpression("Constraints[9]", "Params.sketch16_height")
pad3 = body.newObject("PartDesign::Pad", "Pad002")
pad3.Profile = sketch16
pad3.setExpression("Length", "Params.pad3_length")

# Sketch on an angled plane
sketch17 = body.newObject("Sketcher::SketchObject", "Sketch016")
sketch17.Placement = App.Placement(Vector(60.690327, 35.039576, 0), App.Rotation(Vector(0, 0, 1), Vector(-0.5, 0.866025404, 0), Vector(-0.866025404, -0.5, 0), "ZXY"))
add_polygon(sketch17, [(-76, -16), (-76, -25), (-7, -25), (-7, -16)])  # lines 0-3
sketch17.addConstraint([
    Sketcher.Constraint("Vertical", 0),
    Sketcher.Constraint("Horizontal", 1),
    Sketcher.Constraint("Vertical", 2),
    Sketcher.Constraint("Horizontal", 3),
    Sketcher.Constraint("DistanceX", 1, 1, 1, 2, Q("2.72 in")),
    Sketcher.Constraint("DistanceX", 0, 2, -1, 1, Q("3.01 in")),
    Sketcher.Constraint("DistanceY", 0, 2, 0, 1, Q("0.3675 in")),
    Sketcher.Constraint("DistanceY", 0, 2, -1, 1, 25.34383),
])
sketch17.setExpression("Constraints[8]", "Params.sketch17_width")
pocket14 = body.newObject("PartDesign::Pocket", "Pocket013")
pocket14.Profile = sketch17
pocket14.Type = "UpToFirst"

# Sketch on an angled plane
sketch18 = body.newObject("Sketcher::SketchObject", "Sketch017")
sketch18.Placement = App.Placement(Vector(14.227665, -24.643038, 0), App.Rotation(Vector(0.866025404, 0.5, 0), Vector(0, 0, -1), Vector(-0.5, 0.866025404, 0), "ZXY"))
add_polygon(sketch18, [(71.8, 88.9), (71.8, 0), (73, 0), (73, 88.9)])  # lines 0-3
sketch18.addConstraint([
    Sketcher.Constraint("Vertical", 0),
    Sketcher.Constraint("Horizontal", 1),
    Sketcher.Constraint("Vertical", 2),
    Sketcher.Constraint("Horizontal", 3),
    Sketcher.Constraint("PointOnObject", 0, 2, -1),
    Sketcher.Constraint("DistanceY", 0, 2, 0, 1, Q("3.5 in")),
    Sketcher.Constraint("DistanceX", 1, 1, 1, 2, Q("0.05 in")),
    Sketcher.Constraint("DistanceX", -1, 1, 0, 2, 71.755959),
])
sketch18.setExpression("Constraints[9]", "Params.sketch18_height")
sketch18.setExpression("Constraints[10]", "Params.sketch18_width")
pocket15 = body.newObject("PartDesign::Pocket", "Pocket014")
pocket15.Profile = sketch18
pocket15.Type = "UpToFirst"

doc.recompute()
